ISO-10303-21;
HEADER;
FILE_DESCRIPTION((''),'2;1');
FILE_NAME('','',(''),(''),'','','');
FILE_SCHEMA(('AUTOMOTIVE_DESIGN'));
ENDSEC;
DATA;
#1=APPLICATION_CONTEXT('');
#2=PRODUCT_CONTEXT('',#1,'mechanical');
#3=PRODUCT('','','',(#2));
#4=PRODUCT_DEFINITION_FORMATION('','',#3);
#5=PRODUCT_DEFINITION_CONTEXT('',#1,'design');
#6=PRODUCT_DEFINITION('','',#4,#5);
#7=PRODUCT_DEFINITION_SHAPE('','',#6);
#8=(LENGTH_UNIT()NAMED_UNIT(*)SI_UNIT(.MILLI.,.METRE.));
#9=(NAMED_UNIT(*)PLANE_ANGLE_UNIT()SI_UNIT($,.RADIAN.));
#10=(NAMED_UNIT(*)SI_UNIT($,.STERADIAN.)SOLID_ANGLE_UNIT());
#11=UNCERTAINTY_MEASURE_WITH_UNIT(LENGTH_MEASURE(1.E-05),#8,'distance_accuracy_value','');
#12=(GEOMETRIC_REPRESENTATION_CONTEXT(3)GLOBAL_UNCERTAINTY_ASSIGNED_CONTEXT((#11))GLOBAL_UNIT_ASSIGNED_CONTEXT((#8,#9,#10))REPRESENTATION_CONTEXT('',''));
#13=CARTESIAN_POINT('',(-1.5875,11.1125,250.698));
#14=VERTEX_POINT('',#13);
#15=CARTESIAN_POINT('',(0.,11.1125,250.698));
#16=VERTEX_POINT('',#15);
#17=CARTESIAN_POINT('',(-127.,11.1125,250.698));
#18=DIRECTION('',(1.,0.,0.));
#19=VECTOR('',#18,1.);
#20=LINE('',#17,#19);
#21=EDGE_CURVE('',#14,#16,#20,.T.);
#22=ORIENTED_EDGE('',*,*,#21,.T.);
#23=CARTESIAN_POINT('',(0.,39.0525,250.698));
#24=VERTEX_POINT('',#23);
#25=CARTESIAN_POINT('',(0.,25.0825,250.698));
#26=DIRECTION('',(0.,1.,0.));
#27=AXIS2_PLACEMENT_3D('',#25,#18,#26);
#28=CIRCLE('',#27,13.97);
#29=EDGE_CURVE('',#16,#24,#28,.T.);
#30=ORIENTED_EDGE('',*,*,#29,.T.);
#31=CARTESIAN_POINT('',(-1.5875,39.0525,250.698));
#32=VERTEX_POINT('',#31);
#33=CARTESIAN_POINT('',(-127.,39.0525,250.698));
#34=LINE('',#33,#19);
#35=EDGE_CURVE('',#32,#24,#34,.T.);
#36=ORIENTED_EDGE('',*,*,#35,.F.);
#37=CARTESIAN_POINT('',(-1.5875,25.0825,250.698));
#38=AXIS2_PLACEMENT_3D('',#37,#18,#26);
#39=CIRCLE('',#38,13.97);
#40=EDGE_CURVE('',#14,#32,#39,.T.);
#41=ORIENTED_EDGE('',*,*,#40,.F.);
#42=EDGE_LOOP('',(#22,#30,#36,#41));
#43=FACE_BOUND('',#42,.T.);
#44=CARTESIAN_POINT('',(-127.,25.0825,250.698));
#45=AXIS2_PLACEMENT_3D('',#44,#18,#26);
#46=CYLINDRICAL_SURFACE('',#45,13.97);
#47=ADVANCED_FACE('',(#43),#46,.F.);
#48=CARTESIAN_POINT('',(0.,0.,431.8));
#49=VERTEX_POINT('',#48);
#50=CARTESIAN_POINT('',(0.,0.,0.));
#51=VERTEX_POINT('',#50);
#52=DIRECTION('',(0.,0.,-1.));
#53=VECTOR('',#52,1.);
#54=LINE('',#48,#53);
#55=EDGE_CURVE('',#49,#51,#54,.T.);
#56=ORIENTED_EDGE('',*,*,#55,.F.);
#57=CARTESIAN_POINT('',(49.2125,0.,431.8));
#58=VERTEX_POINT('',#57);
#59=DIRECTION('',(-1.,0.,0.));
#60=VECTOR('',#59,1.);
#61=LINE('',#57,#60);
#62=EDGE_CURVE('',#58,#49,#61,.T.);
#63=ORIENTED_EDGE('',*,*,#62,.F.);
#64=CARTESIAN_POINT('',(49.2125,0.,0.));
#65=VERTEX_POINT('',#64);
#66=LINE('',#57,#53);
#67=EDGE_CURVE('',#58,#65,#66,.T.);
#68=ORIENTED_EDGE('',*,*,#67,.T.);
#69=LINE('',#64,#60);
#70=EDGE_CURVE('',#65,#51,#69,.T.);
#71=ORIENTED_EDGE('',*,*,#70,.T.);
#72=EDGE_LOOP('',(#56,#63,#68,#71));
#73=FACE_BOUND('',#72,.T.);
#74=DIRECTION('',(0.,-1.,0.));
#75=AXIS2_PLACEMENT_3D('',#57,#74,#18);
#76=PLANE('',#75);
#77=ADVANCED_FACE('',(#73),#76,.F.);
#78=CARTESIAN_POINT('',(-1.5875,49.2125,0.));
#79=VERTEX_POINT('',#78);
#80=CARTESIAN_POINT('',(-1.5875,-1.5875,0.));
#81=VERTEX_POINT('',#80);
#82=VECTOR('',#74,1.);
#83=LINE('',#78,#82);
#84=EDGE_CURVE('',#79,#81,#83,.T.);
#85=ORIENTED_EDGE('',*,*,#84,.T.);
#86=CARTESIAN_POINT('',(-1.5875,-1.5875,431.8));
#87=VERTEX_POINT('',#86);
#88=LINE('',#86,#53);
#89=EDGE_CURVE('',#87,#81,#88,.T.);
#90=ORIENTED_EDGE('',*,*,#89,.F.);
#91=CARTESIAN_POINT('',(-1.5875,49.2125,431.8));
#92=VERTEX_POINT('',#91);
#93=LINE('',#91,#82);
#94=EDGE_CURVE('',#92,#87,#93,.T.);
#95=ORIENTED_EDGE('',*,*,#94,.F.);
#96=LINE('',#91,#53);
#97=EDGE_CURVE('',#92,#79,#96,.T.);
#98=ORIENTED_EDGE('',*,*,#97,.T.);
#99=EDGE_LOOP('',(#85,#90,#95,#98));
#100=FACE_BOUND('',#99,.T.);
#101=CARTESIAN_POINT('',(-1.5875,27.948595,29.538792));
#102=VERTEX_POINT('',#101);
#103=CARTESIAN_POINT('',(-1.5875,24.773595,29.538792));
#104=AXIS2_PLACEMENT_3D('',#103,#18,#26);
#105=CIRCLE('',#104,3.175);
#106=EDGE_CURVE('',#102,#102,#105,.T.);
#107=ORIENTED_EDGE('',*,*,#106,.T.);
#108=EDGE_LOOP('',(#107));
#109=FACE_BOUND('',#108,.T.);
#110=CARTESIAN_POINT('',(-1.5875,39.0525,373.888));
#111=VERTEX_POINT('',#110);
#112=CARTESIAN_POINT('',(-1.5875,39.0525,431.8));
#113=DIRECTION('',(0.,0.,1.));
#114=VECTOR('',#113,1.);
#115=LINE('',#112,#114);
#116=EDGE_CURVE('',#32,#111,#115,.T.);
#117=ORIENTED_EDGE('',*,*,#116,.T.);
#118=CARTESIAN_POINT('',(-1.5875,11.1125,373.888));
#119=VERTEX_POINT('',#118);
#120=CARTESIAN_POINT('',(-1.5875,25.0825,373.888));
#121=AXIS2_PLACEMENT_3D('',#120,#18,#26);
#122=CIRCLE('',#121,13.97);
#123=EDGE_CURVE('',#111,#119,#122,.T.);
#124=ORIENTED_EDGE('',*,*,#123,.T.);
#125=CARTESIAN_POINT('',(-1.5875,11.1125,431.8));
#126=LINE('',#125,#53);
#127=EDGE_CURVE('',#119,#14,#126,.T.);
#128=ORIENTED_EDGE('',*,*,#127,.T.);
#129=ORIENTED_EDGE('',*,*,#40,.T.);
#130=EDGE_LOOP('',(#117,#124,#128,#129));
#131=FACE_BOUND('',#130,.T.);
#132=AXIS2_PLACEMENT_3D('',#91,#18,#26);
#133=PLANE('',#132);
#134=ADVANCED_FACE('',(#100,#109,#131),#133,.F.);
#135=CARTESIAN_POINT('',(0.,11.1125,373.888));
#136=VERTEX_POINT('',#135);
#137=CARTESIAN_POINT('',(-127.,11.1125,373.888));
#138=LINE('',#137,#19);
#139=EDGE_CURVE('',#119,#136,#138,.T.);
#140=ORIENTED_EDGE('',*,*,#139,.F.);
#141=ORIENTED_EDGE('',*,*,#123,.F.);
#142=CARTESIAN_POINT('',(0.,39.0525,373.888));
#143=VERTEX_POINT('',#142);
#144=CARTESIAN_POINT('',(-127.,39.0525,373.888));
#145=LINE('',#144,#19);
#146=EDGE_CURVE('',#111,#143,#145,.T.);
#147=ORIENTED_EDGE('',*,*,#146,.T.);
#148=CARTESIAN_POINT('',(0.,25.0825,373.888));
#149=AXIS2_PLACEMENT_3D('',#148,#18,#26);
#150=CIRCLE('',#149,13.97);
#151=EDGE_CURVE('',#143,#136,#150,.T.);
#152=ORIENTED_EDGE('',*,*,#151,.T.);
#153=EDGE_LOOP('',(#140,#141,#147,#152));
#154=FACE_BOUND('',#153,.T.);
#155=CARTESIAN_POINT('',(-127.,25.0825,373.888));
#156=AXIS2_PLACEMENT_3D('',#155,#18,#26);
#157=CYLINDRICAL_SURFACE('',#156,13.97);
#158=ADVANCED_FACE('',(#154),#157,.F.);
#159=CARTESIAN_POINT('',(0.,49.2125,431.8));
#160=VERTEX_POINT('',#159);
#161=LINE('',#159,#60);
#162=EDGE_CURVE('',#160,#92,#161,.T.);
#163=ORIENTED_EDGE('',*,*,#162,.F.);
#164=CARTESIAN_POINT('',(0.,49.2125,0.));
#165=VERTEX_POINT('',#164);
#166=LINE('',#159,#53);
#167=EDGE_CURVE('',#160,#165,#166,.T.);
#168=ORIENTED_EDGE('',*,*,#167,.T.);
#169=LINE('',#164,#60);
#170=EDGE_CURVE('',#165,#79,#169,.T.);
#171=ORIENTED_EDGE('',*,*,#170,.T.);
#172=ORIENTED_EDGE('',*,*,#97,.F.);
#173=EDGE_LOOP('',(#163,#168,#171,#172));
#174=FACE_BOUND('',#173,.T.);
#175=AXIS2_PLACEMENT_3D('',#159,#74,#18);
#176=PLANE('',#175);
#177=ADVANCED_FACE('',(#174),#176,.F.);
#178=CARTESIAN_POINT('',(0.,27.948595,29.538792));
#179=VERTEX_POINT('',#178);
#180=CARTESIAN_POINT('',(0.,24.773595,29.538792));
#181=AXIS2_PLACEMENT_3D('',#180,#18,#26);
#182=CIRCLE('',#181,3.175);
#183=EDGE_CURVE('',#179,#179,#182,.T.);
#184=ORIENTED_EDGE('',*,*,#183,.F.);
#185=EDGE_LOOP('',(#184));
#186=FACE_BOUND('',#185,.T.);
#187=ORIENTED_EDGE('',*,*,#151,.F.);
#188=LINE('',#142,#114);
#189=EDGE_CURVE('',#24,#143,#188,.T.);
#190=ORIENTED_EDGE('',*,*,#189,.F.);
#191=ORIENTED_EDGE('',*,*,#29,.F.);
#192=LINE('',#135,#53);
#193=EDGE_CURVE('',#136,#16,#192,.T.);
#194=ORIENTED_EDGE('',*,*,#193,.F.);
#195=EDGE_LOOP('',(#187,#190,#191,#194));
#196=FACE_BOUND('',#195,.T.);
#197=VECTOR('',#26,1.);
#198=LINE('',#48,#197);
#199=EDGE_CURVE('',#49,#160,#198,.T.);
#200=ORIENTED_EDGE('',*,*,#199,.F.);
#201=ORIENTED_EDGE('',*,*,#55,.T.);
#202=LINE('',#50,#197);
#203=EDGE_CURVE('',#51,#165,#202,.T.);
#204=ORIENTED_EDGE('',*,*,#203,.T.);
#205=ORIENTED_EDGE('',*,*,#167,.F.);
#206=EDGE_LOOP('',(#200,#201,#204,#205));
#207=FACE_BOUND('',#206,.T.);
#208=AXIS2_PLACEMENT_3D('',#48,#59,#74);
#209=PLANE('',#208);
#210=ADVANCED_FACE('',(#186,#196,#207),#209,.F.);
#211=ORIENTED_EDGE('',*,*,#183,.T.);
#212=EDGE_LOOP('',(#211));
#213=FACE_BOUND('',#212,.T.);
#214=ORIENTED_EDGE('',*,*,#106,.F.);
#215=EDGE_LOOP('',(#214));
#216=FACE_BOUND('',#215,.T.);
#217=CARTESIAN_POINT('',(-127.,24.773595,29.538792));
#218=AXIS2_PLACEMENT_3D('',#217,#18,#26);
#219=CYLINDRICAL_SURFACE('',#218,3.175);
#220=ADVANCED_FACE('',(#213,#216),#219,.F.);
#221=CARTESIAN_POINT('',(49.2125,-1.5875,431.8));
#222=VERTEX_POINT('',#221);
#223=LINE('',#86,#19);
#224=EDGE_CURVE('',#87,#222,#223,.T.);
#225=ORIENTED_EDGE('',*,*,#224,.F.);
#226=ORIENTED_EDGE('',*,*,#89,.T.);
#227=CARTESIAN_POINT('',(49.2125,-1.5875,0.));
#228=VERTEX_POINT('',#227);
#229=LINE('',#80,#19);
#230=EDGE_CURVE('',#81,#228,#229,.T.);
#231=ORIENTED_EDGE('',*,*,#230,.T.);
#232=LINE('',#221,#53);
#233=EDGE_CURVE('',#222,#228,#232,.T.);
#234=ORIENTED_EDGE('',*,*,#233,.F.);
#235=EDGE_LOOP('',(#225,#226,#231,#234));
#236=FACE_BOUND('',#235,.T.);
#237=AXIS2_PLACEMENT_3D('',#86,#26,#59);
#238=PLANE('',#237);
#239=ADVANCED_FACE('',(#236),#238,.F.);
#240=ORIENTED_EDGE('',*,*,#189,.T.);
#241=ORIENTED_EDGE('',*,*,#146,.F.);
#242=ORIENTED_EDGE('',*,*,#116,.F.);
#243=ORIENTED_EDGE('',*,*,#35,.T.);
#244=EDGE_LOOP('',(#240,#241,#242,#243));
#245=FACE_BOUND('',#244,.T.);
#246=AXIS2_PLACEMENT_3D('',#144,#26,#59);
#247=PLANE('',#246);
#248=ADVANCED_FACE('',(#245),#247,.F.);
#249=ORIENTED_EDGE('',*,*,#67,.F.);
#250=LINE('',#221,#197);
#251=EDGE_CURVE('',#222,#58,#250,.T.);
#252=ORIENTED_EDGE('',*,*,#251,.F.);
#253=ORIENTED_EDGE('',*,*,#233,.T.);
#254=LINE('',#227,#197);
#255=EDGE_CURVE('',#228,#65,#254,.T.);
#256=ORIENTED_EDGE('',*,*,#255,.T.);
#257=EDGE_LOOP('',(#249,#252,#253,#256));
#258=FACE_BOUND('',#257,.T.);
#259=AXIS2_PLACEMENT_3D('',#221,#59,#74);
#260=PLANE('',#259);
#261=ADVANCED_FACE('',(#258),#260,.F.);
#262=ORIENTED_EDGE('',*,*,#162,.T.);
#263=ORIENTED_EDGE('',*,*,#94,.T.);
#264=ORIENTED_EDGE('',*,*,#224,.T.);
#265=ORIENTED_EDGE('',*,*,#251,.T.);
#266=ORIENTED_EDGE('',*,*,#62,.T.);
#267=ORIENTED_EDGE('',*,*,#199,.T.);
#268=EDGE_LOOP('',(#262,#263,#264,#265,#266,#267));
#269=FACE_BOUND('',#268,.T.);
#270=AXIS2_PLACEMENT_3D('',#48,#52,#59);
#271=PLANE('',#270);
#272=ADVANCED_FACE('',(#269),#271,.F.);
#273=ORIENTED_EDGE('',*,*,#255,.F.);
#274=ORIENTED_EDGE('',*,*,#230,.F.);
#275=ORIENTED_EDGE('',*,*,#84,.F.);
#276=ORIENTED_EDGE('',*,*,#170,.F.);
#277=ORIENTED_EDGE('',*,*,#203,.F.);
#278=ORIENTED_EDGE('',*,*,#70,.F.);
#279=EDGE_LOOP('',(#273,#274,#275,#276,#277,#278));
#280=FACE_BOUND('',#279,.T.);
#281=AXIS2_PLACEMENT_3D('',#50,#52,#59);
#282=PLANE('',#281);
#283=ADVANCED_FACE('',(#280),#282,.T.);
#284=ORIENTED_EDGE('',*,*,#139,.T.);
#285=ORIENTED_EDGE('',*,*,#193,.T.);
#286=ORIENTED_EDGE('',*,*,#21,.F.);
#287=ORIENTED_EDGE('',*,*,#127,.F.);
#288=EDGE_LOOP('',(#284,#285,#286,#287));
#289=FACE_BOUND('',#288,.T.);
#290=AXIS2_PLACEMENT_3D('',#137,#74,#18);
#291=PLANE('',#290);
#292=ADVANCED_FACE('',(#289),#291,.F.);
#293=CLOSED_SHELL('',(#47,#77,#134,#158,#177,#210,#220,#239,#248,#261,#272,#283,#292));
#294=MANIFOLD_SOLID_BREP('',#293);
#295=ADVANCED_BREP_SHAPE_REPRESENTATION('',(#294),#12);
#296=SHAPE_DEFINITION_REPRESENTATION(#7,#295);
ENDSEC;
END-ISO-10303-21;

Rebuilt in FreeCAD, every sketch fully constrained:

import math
import FreeCAD as App
import Part
import Sketcher
Q = App.Units.Quantity


def add_polygon(sketch, points):
    """Adds a closed chain of lines whose ends are joined by coincident constraints."""
    first, n = sketch.GeometryCount, len(points)
    for a, b in zip(points, points[1:] + points[:1]):
        sketch.addGeometry(Part.LineSegment(App.Vector(*a, 0), App.Vector(*b, 0)), False)
    for i in range(n):
        sketch.addConstraint(Sketcher.Constraint("Coincident", first + i, 2, first + (i + 1) % n, 1))

doc = App.newDocument("Part")
body = doc.addObject("PartDesign::Body", "Body")

# Sketch on XY plane
sketch1 = body.newObject("Sketcher::SketchObject", "Sketch")
sketch1.AttachmentSupport = (doc.getObject("XY_Plane"), [""])
sketch1.MapMode = "FlatFace"
add_polygon(sketch1, [(0, 0), (0, 49.2), (-1.6, 49.2), (-1.6, -1.6), (49.2, -1.6), (49.2, 0)])  # lines 0-5
sketch1.addConstraint([
    Sketcher.Constraint("Vertical", 0),
    Sketcher.Constraint("Horizontal", 1),
    Sketcher.Constraint("Vertical", 2),
    Sketcher.Constraint("Horizontal", 3),
    Sketcher.Constraint("Vertical", 4),
    Sketcher.Constraint("Horizontal", 5),
    Sketcher.Constraint("Coincident", 5, 2, -1, 1),
    Sketcher.Constraint("Equal", 5, 0),
    Sketcher.Constraint("Equal", 3, 2),
    Sketcher.Constraint("DistanceX", 3, 1, 3, 2, Q("2 in")),
    Sketcher.Constraint("DistanceX", 1, 2, 1, 1, Q("0.0625 in")),
])
pad1 = body.newObject("PartDesign::Pad", "Pad")
pad1.Profile = sketch1
pad1.Length = Q("17 in")

# Sketch on YZ plane
sketch2 = body.newObject("Sketcher::SketchObject", "Sketch001")
sketch2.AttachmentSupport = (doc.getObject("YZ_Plane"), [""])
sketch2.MapMode = "FlatFace"
sketch2.addGeometry([
    Part.LineSegment(App.Vector(39, 251, 0), App.Vector(39, 374, 0)),
    Part.ArcOfCircle(Part.Circle(App.Vector(25, 374, 0), App.Vector(0, 0, 1), 14), math.radians(0), math.radians(180)),
    Part.LineSegment(App.Vector(11, 374, 0), App.Vector(11, 251, 0)),
    Part.ArcOfCircle(Part.Circle(App.Vector(25, 251, 0), App.Vector(0, 0, 1), 14), math.radians(180), math.radians(360)),
], False)
sketch2.addConstraint([
    Sketcher.Constraint("Tangent", 0, 2, 1, 1),
    Sketcher.Constraint("Tangent", 1, 2, 2, 1),
    Sketcher.Constraint("Tangent", 2, 2, 3, 1),
    Sketcher.Constraint("Tangent", 3, 2, 0, 1),
    Sketcher.Constraint("Vertical", 0),
    Sketcher.Constraint("Vertical", 2),
    Sketcher.Constraint("Radius", 1, Q("0.55 in")),
    Sketcher.Constraint("DistanceY", 0, 1, 0, 2, Q("4.85 in")),
    Sketcher.Constraint("DistanceY", -1, 1, 1, 3, Q("14.72 in")),
    Sketcher.Constraint("DistanceX", -1, 1, 1, 2, Q("0.4375 in")),
])
pocket1 = body.newObject("PartDesign::Pocket", "Pocket")
pocket1.Profile = sketch2
pocket1.Length = Q("5 in")

# Sketch on YZ plane
sketch3 = body.newObject("Sketcher::SketchObject", "Sketch002")
sketch3.AttachmentSupport = (doc.getObject("YZ_Plane"), [""])
sketch3.MapMode = "FlatFace"
sketch3.addGeometry(Part.Circle(App.Vector(24.8, 29.5, 0), App.Vector(0, 0, 1), 3.2), False)
sketch3.addConstraint([
    Sketcher.Constraint("Diameter", 0, Q("0.25 in")),
    Sketcher.Constraint("DistanceX", -1, 1, 0, 3, Q("24.773595 mm")),
    Sketcher.Constraint("DistanceY", -1, 1, 0, 3, Q("29.538792 mm")),
])
pocket2 = body.newObject("PartDesign::Pocket", "Pocket001")
pocket2.Profile = sketch3
pocket2.Length = Q("5 in")

doc.recompute()
